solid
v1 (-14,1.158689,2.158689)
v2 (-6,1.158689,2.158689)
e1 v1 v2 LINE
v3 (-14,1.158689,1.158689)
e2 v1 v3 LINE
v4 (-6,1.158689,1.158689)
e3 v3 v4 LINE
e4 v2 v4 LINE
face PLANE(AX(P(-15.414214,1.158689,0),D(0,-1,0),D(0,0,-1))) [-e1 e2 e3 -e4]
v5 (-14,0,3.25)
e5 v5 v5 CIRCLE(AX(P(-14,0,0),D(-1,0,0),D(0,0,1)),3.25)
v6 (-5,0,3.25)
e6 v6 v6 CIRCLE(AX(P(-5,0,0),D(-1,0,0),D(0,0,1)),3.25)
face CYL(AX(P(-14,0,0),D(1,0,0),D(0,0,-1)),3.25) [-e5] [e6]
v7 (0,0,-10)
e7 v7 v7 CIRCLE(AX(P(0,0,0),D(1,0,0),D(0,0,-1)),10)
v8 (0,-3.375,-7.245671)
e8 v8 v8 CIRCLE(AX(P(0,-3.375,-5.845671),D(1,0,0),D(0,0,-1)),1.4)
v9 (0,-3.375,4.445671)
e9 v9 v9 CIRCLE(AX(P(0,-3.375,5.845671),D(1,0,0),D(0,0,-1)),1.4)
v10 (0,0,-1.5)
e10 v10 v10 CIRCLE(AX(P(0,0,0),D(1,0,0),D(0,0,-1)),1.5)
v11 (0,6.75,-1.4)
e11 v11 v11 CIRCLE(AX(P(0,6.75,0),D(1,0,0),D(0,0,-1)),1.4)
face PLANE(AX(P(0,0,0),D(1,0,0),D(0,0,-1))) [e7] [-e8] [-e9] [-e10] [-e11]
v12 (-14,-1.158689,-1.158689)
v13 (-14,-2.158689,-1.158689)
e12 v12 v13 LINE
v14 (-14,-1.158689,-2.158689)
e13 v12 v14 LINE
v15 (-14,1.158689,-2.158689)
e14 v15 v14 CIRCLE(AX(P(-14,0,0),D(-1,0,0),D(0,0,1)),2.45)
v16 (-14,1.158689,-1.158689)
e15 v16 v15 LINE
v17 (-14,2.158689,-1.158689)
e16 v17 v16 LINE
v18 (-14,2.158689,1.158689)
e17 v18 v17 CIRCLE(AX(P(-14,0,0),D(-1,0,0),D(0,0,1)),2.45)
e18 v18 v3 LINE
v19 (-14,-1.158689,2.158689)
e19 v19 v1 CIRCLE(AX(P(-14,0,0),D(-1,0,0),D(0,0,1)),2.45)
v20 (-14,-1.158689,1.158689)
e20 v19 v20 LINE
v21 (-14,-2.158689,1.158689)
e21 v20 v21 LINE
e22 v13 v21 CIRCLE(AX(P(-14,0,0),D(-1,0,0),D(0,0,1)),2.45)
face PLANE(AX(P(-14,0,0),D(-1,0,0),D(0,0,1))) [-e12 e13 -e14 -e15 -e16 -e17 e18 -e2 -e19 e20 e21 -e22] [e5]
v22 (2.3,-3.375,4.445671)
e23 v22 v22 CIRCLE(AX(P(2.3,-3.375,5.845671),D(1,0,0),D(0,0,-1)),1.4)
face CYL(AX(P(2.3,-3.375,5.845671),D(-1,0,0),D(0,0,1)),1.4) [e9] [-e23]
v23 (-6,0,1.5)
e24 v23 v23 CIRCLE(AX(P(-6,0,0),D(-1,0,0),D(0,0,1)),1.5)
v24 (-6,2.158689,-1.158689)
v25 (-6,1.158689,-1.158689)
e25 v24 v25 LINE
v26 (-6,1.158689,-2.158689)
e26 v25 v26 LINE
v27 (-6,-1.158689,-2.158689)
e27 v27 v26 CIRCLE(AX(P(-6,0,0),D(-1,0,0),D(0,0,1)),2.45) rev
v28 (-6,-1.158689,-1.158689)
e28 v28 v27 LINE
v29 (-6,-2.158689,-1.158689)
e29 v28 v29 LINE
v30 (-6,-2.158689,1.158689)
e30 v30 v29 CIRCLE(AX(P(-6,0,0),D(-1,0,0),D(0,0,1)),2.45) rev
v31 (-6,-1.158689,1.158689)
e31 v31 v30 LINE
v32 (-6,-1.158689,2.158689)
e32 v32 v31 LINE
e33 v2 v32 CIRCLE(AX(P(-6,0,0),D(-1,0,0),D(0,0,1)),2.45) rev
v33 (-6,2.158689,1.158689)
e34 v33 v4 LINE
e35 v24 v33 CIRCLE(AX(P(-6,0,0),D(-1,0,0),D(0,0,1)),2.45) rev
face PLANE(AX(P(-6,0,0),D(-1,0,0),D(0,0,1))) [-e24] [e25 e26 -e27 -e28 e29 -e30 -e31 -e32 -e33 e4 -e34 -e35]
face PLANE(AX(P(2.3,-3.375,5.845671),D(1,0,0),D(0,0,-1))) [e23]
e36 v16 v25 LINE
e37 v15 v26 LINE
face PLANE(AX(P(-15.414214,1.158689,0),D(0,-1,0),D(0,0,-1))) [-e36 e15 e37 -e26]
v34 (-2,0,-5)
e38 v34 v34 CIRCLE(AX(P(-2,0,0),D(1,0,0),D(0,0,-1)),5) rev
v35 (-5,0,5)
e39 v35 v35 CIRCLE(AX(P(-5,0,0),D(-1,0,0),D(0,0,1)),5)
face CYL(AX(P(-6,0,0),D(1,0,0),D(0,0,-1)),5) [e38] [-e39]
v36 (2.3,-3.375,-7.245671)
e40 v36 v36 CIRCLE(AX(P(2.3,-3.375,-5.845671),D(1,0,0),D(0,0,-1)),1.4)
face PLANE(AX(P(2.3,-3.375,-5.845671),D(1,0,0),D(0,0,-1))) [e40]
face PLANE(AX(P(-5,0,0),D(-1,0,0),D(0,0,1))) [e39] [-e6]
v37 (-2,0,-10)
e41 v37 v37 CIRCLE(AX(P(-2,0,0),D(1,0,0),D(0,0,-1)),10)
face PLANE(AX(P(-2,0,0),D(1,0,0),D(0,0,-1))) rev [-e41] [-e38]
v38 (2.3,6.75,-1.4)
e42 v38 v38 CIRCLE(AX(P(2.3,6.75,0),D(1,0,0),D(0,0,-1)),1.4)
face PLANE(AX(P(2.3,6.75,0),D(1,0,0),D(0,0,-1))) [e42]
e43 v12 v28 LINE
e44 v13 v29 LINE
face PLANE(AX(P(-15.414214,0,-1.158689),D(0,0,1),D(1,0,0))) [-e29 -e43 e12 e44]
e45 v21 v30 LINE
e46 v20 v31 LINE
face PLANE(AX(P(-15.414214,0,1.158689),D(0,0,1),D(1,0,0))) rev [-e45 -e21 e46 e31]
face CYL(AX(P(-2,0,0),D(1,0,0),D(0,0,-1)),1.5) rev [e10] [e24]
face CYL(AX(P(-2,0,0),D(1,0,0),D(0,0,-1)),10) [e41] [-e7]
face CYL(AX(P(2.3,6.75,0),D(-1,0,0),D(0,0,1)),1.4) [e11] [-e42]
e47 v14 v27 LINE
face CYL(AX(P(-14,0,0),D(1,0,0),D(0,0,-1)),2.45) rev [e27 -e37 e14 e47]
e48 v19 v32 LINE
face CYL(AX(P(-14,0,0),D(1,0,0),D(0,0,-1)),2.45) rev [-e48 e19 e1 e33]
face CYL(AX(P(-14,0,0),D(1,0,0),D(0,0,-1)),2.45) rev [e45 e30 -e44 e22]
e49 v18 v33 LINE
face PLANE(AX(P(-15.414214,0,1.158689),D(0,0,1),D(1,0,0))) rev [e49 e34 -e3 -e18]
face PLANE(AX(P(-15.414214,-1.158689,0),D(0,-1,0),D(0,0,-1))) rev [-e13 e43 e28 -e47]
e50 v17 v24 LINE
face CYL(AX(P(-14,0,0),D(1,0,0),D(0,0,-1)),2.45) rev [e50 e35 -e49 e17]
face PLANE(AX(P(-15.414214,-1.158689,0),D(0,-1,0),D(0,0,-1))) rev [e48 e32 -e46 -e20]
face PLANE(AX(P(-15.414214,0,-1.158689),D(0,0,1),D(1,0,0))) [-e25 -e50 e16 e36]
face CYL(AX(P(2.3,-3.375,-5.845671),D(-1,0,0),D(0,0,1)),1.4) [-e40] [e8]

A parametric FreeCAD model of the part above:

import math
import FreeCAD as App
import Part
import Sketcher
from FreeCAD import Vector

doc = App.newDocument("Part")
params = doc.addObject("Spreadsheet::Sheet", "Params")
for row, (alias, value) in enumerate([
    ("sketch1_diameter", "2.8 mm"),
    ("pad1_length", "2.3 mm"),
    ("sketch2_diameter", "2.8 mm"),
    ("pad2_length", "2.3 mm"),
    ("sketch3_diameter", "2.8 mm"),
    ("pad3_length", "2.3 mm"),
    ("sketch4_diameter", "20 mm"),
    ("sketch4_diameter2", "3 mm"),
    ("pad4_length", "2 mm"),
    ("sketch5_diameter", "10 mm"),
    ("sketch5_diameter2", "3 mm"),
    ("pad5_length", "4 mm"),
    ("sketch6_diameter", "6.5 mm"),
    ("sketch6_diameter2", "4.9 mm"),
    ("pad6_length", "8 mm"),
    ("sketch7_width", "1 mm"),
    ("sketch7_radius", "2.45 mm"),
    ("pad7_length", "8 mm"),
    ("sketch8_diameter", "10 mm"),
    ("sketch8_diameter2", "6.5 mm"),
    ("pocket1_length", "1 mm"),
], start=1):
    params.set(f"A{row}", alias)
    params.set(f"B{row}", "=" + value)
    params.setAlias(f"B{row}", alias)

body = doc.addObject("PartDesign::Body", "Body")

sketch1 = body.newObject("Sketcher::SketchObject", "Sketch")
sketch1.AttachmentSupport = (doc.getObject("YZ_Plane"), [""])
sketch1.MapMode = "FlatFace"
sketch1.addGeometry(Part.Circle(Vector(6.8, 0, 0), Vector(0, 0, 1), 1.4), False)
sketch1.addConstraint(Sketcher.Constraint("PointOnObject", 0, 3, -1))
sketch1.addConstraint(Sketcher.Constraint("Diameter", 0, 2.8))
sketch1.addConstraint(Sketcher.Constraint("DistanceX", -1, 1, 0, 3, 6.75))
sketch1.setExpression("Constraints[1]", "Params.sketch1_diameter")
pad1 = body.newObject("PartDesign::Pad", "Pad")
pad1.Profile = sketch1
pad1.setExpression("Length", "Params.pad1_length")
body2 = doc.addObject("PartDesign::Body", "Body001")

sketch2 = body2.newObject("Sketcher::SketchObject", "Sketch001")
sketch2.AttachmentSupport = (doc.getObject("YZ_Plane001"), [""])
sketch2.MapMode = "FlatFace"
sketch2.addGeometry(Part.Circle(Vector(-3.4, -5.8, 0), Vector(0, 0, 1), 1.4), False)
sketch2.addConstraint(Sketcher.Constraint("Diameter", 0, 2.8))
sketch2.addConstraint(Sketcher.Constraint("DistanceX", 0, 3, -1, 1, 3.375))
sketch2.addConstraint(Sketcher.Constraint("DistanceY", 0, 3, -1, 1, 5.845671))
sketch2.setExpression("Constraints[0]", "Params.sketch2_diameter")
pad2 = body2.newObject("PartDesign::Pad", "Pad001")
pad2.Profile = sketch2
pad2.setExpression("Length", "Params.pad2_length")
body3 = doc.addObject("PartDesign::Body", "Body002")

sketch3 = body3.newObject("Sketcher::SketchObject", "Sketch002")
sketch3.AttachmentSupport = (doc.getObject("YZ_Plane002"), [""])
sketch3.MapMode = "FlatFace"
sketch3.addGeometry(Part.Circle(Vector(-3.4, 5.8, 0), Vector(0, 0, 1), 1.4), False)
sketch3.addConstraint(Sketcher.Constraint("Diameter", 0, 2.8))
sketch3.addConstraint(Sketcher.Constraint("DistanceX", 0, 3, -1, 1, 3.375))
sketch3.addConstraint(Sketcher.Constraint("DistanceY", -1, 1, 0, 3, 5.845671))
sketch3.setExpression("Constraints[0]", "Params.sketch3_diameter")
pad3 = body3.newObject("PartDesign::Pad", "Pad002")
pad3.Profile = sketch3
pad3.setExpression("Length", "Params.pad3_length")
body.AllowCompound = True
doc.recompute()

boolean = body.newObject("PartDesign::Boolean", "Boolean")
boolean.Type = "Fuse"
boolean.addObjects([body2])
doc.recompute()

boolean2 = body.newObject("PartDesign::Boolean", "Boolean001")
boolean2.Type = "Fuse"
boolean2.addObjects([body3])

sketch4 = body.newObject("Sketcher::SketchObject", "Sketch003")
sketch4.AttachmentSupport = (doc.getObject("YZ_Plane"), [""])
sketch4.MapMode = "FlatFace"
sketch4.addGeometry(Part.Circle(Vector(0, 0, 0), Vector(0, 0, 1), 10), False)
sketch4.addGeometry(Part.Circle(Vector(0, 0, 0), Vector(0, 0, 1), 1.5), False)
sketch4.addConstraint(Sketcher.Constraint("Coincident", 0, 3, -1, 1))
sketch4.addConstraint(Sketcher.Constraint("Coincident", 1, 3, -1, 1))
sketch4.addConstraint(Sketcher.Constraint("Diameter", 0, 20.0))
sketch4.addConstraint(Sketcher.Constraint("Diameter", 1, 3.0))
sketch4.setExpression("Constraints[2]", "Params.sketch4_diameter")
sketch4.setExpression("Constraints[3]", "Params.sketch4_diameter2")
pad4 = body.newObject("PartDesign::Pad", "Pad003")
pad4.Profile = sketch4
pad4.setExpression("Length", "Params.pad4_length")
pad4.Reversed = True

sketch5 = body.newObject("Sketcher::SketchObject", "Sketch004")
sketch5.AttachmentSupport = (doc.getObject("YZ_Plane"), [""])
sketch5.MapMode = "FlatFace"
sketch5.AttachmentOffset = App.Placement(Vector(0, 0, -2), App.Rotation())
sketch5.addGeometry(Part.Circle(Vector(0, 0, 0), Vector(0, 0, 1), 5), False)
sketch5.addGeometry(Part.Circle(Vector(0, 0, 0), Vector(0, 0, 1), 1.5), False)
sketch5.addConstraint(Sketcher.Constraint("Coincident", 0, 3, -1, 1))
sketch5.addConstraint(Sketcher.Constraint("Coincident", 1, 3, -1, 1))
sketch5.addConstraint(Sketcher.Constraint("Diameter", 0, 10.0))
sketch5.addConstraint(Sketcher.Constraint("Diameter", 1, 3.0))
sketch5.setExpression("Constraints[2]", "Params.sketch5_diameter")
sketch5.setExpression("Constraints[3]", "Params.sketch5_diameter2")
pad5 = body.newObject("PartDesign::Pad", "Pad004")
pad5.Profile = sketch5
pad5.setExpression("Length", "Params.pad5_length")
pad5.Reversed = True

sketch6 = body.newObject("Sketcher::SketchObject", "Sketch005")
sketch6.AttachmentSupport = (doc.getObject("YZ_Plane"), [""])
sketch6.MapMode = "FlatFace"
sketch6.AttachmentOffset = App.Placement(Vector(0, 0, -6), App.Rotation())
sketch6.addGeometry(Part.Circle(Vector(0, 0, 0), Vector(0, 0, 1), 3.2), False)
sketch6.addGeometry(Part.Circle(Vector(0, 0, 0), Vector(0, 0, 1), 2.5), False)
sketch6.addConstraint(Sketcher.Constraint("Coincident", 0, 3, -1, 1))
sketch6.addConstraint(Sketcher.Constraint("Coincident", 1, 3, -1, 1))
sketch6.addConstraint(Sketcher.Constraint("Diameter", 0, 6.5))
sketch6.addConstraint(Sketcher.Constraint("Diameter", 1, 4.9))
sketch6.setExpression("Constraints[2]", "Params.sketch6_diameter")
sketch6.setExpression("Constraints[3]", "Params.sketch6_diameter2")
pad6 = body.newObject("PartDesign::Pad", "Pad005")
pad6.Profile = sketch6
pad6.setExpression("Length", "Params.pad6_length")
pad6.Reversed = True

sketch7 = body.newObject("Sketcher::SketchObject", "Sketch006")
sketch7.AttachmentSupport = (doc.getObject("YZ_Plane"), [""])
sketch7.MapMode = "FlatFace"
sketch7.AttachmentOffset = App.Placement(Vector(0, 0, -6), App.Rotation())
sketch7.addGeometry(Part.LineSegment(Vector(-1.2, 2.2, 0), Vector(-1.2, 1.2, 0)), False)
sketch7.addGeometry(Part.LineSegment(Vector(-1.2, 1.2, 0), Vector(-2.2, 1.2, 0)), False)
sketch7.addGeometry(Part.ArcOfCircle(Part.Circle(Vector(0, 0, 0), Vector(0, 0, 1), 2.5), math.radians(118), math.radians(152)), False)
sketch7.addGeometry(Part.ArcOfCircle(Part.Circle(Vector(0, 0, 0), Vector(0, 0, 1), 2.5), math.radians(28), math.radians(62)), False)
sketch7.addGeometry(Part.LineSegment(Vector(2.2, 1.2, 0), Vector(1.2, 1.2, 0)), False)
sketch7.addGeometry(Part.LineSegment(Vector(1.2, 1.2, 0), Vector(1.2, 2.2, 0)), False)
sketch7.addGeometry(Part.LineSegment(Vector(1.2, -1.2, 0), Vector(2.2, -1.2, 0)), False)
sketch7.addGeometry(Part.ArcOfCircle(Part.Circle(Vector(0, 0, 0), Vector(0, 0, 1), 2.5), math.radians(-62), math.radians(-28)), False)
sketch7.addGeometry(Part.LineSegment(Vector(1.2, -2.2, 0), Vector(1.2, -1.2, 0)), False)
sketch7.addGeometry(Part.LineSegment(Vector(-2.2, -1.2, 0), Vector(-1.2, -1.2, 0)), False)
sketch7.addGeometry(Part.LineSegment(Vector(-1.2, -1.2, 0), Vector(-1.2, -2.2, 0)), False)
sketch7.addGeometry(Part.ArcOfCircle(Part.Circle(Vector(0, 0, 0), Vector(0, 0, 1), 2.5), math.radians(-152), math.radians(-118)), False)
sketch7.addConstraint(Sketcher.Constraint("Coincident", 0, 2, 1, 1))
sketch7.addConstraint(Sketcher.Constraint("Coincident", 1, 2, 2, 2))
sketch7.addConstraint(Sketcher.Constraint("Coincident", 2, 1, 0, 1))
sketch7.addConstraint(Sketcher.Constraint("Coincident", 3, 1, 4, 1))
sketch7.addConstraint(Sketcher.Constraint("Coincident", 4, 2, 5, 1))
sketch7.addConstraint(Sketcher.Constraint("Coincident", 5, 2, 3, 2))
sketch7.addConstraint(Sketcher.Constraint("Coincident", 6, 2, 7, 2))
sketch7.addConstraint(Sketcher.Constraint("Coincident", 7, 1, 8, 1))
sketch7.addConstraint(Sketcher.Constraint("Coincident", 8, 2, 6, 1))
sketch7.addConstraint(Sketcher.Constraint("Coincident", 9, 2, 10, 1))
sketch7.addConstraint(Sketcher.Constraint("Coincident", 10, 2, 11, 2))
sketch7.addConstraint(Sketcher.Constraint("Coincident", 11, 1, 9, 1))
sketch7.addConstraint(Sketcher.Constraint("Vertical", 0))
sketch7.addConstraint(Sketcher.Constraint("Horizontal", 1))
sketch7.addConstraint(Sketcher.Constraint("Horizontal", 4))
sketch7.addConstraint(Sketcher.Constraint("Vertical", 5))
sketch7.addConstraint(Sketcher.Constraint("Horizontal", 6))
sketch7.addConstraint(Sketcher.Constraint("Vertical", 8))
sketch7.addConstraint(Sketcher.Constraint("Horizontal", 9))
sketch7.addConstraint(Sketcher.Constraint("Vertical", 10))
sketch7.addConstraint(Sketcher.Constraint("Coincident", 2, 3, -1, 1))
sketch7.addConstraint(Sketcher.Constraint("Coincident", 3, 3, -1, 1))
sketch7.addConstraint(Sketcher.Constraint("Coincident", 7, 3, -1, 1))
sketch7.addConstraint(Sketcher.Constraint("Coincident", 11, 3, -1, 1))
sketch7.addConstraint(Sketcher.Constraint("Equal", 2, 3))
sketch7.addConstraint(Sketcher.Constraint("Equal", 3, 7))
sketch7.addConstraint(Sketcher.Constraint("Equal", 7, 11))
sketch7.addConstraint(Sketcher.Constraint("Symmetric", 0, 2, 8, 2, -1, 1))
sketch7.addConstraint(Sketcher.Constraint("Symmetric", 4, 2, 9, 2, -1, 1))
sketch7.addConstraint(Sketcher.Constraint("Symmetric", 0, 2, 4, 2, -2))
sketch7.addConstraint(Sketcher.Constraint("Equal", 9, 0))
sketch7.addConstraint(Sketcher.Constraint("DistanceX", 1, 2, 1, 1, 1.0))
sketch7.addConstraint(Sketcher.Constraint("Radius", 2, 2.45))
sketch7.setExpression("Constraints[31]", "Params.sketch7_width")
sketch7.setExpression("Constraints[32]", "Params.sketch7_radius")
pad7 = body.newObject("PartDesign::Pad", "Pad006")
pad7.Profile = sketch7
pad7.setExpression("Length", "Params.pad7_length")
pad7.Reversed = True

sketch8 = body.newObject("Sketcher::SketchObject", "Sketch007")
sketch8.AttachmentSupport = (doc.getObject("YZ_Plane"), [""])
sketch8.MapMode = "FlatFace"
sketch8.AttachmentOffset = App.Placement(Vector(0, 0, -5), App.Rotation())
sketch8.addGeometry(Part.Circle(Vector(0, 0, 0), Vector(0, 0, 1), 5), False)
sketch8.addGeometry(Part.Circle(Vector(0, 0, 0), Vector(0, 0, 1), 3.2), False)
sketch8.addConstraint(Sketcher.Constraint("Coincident", 0, 3, -1, 1))
sketch8.addConstraint(Sketcher.Constraint("Coincident", 1, 3, -1, 1))
sketch8.addConstraint(Sketcher.Constraint("Diameter", 0, 10.0))
sketch8.addConstraint(Sketcher.Constraint("Diameter", 1, 6.5))
sketch8.setExpression("Constraints[2]", "Params.sketch8_diameter")
sketch8.setExpression("Constraints[3]", "Params.sketch8_diameter2")
pocket1 = body.newObject("PartDesign::Pocket", "Pocket")
pocket1.Profile = sketch8
pocket1.setExpression("Length", "Params.pocket1_length")

doc.recompute()
